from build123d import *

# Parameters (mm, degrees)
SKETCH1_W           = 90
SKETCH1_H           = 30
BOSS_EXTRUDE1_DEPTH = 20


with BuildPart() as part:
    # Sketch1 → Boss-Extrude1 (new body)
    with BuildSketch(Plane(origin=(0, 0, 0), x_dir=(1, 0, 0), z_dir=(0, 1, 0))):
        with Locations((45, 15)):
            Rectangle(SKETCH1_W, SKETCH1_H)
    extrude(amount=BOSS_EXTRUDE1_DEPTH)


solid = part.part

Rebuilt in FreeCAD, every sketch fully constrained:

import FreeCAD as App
import Part
import Sketcher
from FreeCAD import Vector
Q = App.Units.Quantity

doc = App.newDocument("Part")
params = doc.addObject("Spreadsheet::Sheet", "Params")
for row, (alias, value) in enumerate([
    ("sketch1_width", "90 mm"),
    ("sketch1_height", "30 mm"),
    ("pad1_length", "20 mm"),
], start=1):
    params.set(f"A{row}", alias)
    params.set(f"B{row}", "=" + value)
    params.setAlias(f"B{row}", alias)

body = doc.addObject("PartDesign::Body", "Body")

# Sketch on XZ plane
sketch1 = doc.addObject("Sketcher::SketchObject", "Sketch")
body.addObject(sketch1)
sketch1.AttachmentSupport = (doc.XZ_Plane, [""])
sketch1.MapMode = "FlatFace"
sketch1.addGeometry(Part.LineSegment(Vector(0, -30, 0), Vector(0, 0, 0)), False)
sketch1.addGeometry(Part.LineSegment(Vector(0, 0, 0), Vector(90, 0, 0)), False)
sketch1.addGeometry(Part.LineSegment(Vector(90, 0, 0), Vector(90, -30, 0)), False)
sketch1.addGeometry(Part.LineSegment(Vector(90, -30, 0), Vector(0, -30, 0)), False)
sketch1.addConstraint(Sketcher.Constraint("Coincident", 0, 2, 1, 1))
sketch1.addConstraint(Sketcher.Constraint("Coincident", 1, 2, 2, 1))
sketch1.addConstraint(Sketcher.Constraint("Coincident", 2, 2, 3, 1))
sketch1.addConstraint(Sketcher.Constraint("Coincident", 3, 2, 0, 1))
sketch1.addConstraint(Sketcher.Constraint("Vertical", 0))
sketch1.addConstraint(Sketcher.Constraint("Horizontal", 1))
sketch1.addConstraint(Sketcher.Constraint("Vertical", 2))
sketch1.addConstraint(Sketcher.Constraint("Horizontal", 3))
sketch1.addConstraint(Sketcher.Constraint("Coincident", 0, 2, -1, 1))
sketch1.addConstraint(Sketcher.Constraint("DistanceX", 1, 1, 1, 2, Q("90 mm")))
sketch1.addConstraint(Sketcher.Constraint("DistanceY", 0, 1, 0, 2, Q("30 mm")))
sketch1.setExpression("Constraints[9]", "Params.sketch1_width")
sketch1.setExpression("Constraints[10]", "Params.sketch1_height")
pad1 = doc.addObject("PartDesign::Pad", "Pad")
body.addObject(pad1)
pad1.Profile = sketch1
pad1.setExpression("Length", "Params.pad1_length")
pad1.Reversed = True

doc.recompute()
